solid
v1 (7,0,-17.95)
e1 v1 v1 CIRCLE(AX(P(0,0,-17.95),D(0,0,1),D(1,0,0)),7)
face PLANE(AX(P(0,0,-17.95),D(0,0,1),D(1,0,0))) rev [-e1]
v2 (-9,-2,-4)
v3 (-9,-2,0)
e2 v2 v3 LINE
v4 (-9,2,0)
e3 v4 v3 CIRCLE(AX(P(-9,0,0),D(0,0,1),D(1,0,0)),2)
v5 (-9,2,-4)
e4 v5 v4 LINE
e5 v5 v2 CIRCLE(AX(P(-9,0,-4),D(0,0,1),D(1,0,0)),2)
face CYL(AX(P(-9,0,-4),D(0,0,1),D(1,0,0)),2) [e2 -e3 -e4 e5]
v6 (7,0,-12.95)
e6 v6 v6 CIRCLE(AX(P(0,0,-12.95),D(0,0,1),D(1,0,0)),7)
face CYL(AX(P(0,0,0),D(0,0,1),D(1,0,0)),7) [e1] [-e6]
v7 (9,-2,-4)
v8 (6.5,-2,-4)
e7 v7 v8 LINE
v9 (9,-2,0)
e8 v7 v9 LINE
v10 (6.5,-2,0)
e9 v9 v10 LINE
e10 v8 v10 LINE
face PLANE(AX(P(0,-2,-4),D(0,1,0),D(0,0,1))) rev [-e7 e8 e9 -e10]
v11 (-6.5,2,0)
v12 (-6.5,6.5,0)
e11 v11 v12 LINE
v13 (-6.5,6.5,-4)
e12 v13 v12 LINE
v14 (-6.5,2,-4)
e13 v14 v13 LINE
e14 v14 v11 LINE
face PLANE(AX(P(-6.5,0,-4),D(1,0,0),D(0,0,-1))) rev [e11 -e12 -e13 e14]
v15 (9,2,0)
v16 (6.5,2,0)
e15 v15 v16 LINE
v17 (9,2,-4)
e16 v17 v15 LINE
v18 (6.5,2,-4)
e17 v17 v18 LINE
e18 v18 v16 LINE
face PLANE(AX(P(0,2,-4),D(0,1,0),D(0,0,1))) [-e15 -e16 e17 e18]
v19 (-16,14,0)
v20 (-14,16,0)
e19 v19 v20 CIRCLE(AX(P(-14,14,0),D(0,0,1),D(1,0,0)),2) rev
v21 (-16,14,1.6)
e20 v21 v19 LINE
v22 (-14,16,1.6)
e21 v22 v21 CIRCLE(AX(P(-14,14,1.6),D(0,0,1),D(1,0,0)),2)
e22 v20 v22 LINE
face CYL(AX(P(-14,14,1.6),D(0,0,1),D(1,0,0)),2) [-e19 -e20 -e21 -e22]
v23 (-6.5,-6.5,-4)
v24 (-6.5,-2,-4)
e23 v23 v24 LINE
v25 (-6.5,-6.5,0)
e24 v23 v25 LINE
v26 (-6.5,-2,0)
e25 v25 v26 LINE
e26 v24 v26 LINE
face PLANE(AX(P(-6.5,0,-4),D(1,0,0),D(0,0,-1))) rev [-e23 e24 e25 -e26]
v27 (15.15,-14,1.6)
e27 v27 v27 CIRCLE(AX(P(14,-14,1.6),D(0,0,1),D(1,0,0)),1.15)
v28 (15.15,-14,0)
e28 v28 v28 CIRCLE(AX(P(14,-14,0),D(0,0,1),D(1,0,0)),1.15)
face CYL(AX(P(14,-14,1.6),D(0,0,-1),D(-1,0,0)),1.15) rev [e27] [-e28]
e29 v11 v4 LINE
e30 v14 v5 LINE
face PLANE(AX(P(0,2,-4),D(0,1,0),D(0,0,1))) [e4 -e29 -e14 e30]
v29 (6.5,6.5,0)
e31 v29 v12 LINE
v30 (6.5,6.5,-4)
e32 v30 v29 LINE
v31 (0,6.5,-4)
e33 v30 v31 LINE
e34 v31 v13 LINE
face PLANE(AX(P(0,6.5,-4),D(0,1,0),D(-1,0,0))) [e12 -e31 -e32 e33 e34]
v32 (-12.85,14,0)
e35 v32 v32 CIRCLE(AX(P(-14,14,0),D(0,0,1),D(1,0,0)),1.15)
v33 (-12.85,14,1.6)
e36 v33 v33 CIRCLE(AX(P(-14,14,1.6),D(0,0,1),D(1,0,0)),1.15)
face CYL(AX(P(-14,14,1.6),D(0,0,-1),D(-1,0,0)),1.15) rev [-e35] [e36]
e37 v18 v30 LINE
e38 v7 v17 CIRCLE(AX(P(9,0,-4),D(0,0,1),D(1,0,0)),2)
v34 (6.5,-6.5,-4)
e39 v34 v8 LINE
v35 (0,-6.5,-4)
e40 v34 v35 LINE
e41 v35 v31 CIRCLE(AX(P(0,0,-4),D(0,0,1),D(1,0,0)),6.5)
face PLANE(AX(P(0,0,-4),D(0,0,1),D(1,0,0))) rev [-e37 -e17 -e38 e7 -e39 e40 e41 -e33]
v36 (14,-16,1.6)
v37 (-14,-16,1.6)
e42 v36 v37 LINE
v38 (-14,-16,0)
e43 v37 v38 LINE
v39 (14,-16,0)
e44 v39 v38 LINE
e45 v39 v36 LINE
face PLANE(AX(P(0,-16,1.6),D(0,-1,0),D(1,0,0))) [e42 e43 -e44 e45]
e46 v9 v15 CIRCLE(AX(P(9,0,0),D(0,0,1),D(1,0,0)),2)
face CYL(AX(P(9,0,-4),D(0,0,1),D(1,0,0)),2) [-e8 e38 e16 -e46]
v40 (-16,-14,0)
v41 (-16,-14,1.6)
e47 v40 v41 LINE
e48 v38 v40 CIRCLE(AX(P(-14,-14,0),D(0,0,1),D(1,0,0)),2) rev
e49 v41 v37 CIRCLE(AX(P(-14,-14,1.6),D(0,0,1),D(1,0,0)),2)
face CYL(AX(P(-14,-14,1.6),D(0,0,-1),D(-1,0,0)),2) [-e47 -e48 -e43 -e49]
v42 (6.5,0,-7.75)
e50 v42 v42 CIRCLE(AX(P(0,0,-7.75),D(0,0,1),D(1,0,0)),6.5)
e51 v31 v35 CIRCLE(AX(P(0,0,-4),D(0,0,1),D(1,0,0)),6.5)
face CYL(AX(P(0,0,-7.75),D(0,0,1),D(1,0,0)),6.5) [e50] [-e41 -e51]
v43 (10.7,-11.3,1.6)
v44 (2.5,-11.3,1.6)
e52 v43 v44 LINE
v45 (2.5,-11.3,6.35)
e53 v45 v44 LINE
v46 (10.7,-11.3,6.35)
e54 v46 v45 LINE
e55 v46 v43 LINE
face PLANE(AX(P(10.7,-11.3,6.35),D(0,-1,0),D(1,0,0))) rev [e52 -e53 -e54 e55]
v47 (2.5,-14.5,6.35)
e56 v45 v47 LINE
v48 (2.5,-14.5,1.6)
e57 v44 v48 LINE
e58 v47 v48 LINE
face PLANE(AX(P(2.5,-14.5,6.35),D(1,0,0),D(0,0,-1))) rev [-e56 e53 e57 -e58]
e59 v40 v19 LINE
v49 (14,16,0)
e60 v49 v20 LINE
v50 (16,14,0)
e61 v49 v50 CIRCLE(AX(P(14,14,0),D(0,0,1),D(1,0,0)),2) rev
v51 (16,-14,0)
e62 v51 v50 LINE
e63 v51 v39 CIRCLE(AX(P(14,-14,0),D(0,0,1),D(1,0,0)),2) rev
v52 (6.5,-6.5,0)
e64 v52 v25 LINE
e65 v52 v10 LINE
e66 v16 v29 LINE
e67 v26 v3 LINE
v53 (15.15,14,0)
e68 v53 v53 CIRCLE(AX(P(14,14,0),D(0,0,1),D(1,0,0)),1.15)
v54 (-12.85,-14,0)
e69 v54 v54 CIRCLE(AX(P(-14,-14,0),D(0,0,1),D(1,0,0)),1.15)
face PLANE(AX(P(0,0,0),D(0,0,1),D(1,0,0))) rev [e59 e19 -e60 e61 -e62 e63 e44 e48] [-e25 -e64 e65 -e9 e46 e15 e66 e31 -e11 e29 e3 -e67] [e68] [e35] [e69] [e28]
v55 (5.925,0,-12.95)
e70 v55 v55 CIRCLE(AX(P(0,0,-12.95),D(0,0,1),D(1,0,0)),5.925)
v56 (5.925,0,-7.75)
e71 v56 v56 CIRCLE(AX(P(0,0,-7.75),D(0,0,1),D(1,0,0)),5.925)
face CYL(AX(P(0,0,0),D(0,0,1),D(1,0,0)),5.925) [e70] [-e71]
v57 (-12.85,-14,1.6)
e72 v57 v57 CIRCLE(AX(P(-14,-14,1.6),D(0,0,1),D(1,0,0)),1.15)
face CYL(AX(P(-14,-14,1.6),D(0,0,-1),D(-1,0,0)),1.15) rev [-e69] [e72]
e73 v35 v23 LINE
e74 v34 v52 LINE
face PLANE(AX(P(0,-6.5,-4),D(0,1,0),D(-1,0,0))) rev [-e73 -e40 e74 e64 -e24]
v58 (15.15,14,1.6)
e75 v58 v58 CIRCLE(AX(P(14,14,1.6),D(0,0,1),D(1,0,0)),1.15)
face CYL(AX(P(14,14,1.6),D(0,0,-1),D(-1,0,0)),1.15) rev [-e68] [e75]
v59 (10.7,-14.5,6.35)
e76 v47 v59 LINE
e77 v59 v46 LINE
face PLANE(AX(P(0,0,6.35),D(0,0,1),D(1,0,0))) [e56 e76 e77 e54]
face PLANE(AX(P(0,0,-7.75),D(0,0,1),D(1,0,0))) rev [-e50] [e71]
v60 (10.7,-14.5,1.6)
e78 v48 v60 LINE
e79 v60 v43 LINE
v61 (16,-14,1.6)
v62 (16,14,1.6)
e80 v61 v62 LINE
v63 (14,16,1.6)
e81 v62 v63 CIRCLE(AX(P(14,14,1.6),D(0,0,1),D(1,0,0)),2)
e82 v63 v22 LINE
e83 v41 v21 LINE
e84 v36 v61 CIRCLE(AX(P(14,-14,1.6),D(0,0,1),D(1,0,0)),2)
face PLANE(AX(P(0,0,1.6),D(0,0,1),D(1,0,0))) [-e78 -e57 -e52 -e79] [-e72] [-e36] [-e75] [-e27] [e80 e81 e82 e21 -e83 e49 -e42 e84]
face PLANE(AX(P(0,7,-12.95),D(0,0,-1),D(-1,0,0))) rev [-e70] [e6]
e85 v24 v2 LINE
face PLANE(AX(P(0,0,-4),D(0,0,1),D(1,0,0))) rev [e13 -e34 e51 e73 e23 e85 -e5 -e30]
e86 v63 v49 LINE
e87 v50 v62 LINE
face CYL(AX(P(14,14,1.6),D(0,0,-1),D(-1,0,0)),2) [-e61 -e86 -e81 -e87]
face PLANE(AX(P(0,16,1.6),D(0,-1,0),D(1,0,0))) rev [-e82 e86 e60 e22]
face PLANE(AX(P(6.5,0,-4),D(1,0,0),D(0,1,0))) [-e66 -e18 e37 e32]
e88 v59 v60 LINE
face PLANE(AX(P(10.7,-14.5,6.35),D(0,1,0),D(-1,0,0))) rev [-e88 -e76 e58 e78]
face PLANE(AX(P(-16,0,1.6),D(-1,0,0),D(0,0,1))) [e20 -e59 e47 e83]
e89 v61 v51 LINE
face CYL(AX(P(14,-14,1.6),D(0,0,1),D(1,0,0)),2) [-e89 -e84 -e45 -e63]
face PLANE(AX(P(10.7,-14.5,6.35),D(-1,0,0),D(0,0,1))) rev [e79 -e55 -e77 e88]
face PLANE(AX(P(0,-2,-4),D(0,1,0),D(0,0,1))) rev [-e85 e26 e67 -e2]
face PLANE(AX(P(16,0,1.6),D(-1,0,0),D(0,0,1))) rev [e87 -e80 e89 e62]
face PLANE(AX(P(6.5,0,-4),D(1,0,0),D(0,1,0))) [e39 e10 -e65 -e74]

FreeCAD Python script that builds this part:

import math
import FreeCAD as App
import Part
import Sketcher
Q = App.Units.Quantity


def edges_at(feature, points):
    """Names of the edges that pass closest to the given points."""
    edges = feature.Shape.Edges
    near = lambda p: min(range(len(edges)), key=lambda i: edges[i].distToShape(Part.Vertex(*p))[0])
    return sorted({f"Edge{near(p) + 1}" for p in points})


def add_polygon(sketch, points):
    """Adds a closed chain of lines whose ends are joined by coincident constraints."""
    first, n = sketch.GeometryCount, len(points)
    for a, b in zip(points, points[1:] + points[:1]):
        sketch.addGeometry(Part.LineSegment(App.Vector(*a, 0), App.Vector(*b, 0)), False)
    for i in range(n):
        sketch.addConstraint(Sketcher.Constraint("Coincident", first + i, 2, first + (i + 1) % n, 1))

doc = App.newDocument("Part")
body = doc.addObject("PartDesign::Body", "Body")

# Sketch on XY plane
sketch1 = body.newObject("Sketcher::SketchObject", "Sketch")
sketch1.AttachmentSupport = (doc.getObject("XY_Plane"), [""])
sketch1.MapMode = "FlatFace"
add_polygon(sketch1, [(-16, 16), (-16, -16), (16, -16), (16, 16)])  # lines 0-3
sketch1.addGeometry(Part.Circle(App.Vector(-14, -14, 0), App.Vector(0, 0, 1), 1.1), False)  # 4
sketch1.addGeometry(Part.Circle(App.Vector(14, -14, 0), App.Vector(0, 0, 1), 1.1), False)  # 5
sketch1.addGeometry(Part.Circle(App.Vector(-14, 14, 0), App.Vector(0, 0, 1), 1.1), False)  # 6
sketch1.addGeometry(Part.Circle(App.Vector(14, 14, 0), App.Vector(0, 0, 1), 1.1), False)  # 7
sketch1.addConstraint([
    Sketcher.Constraint("Vertical", 0),
    Sketcher.Constraint("Horizontal", 1),
    Sketcher.Constraint("Vertical", 2),
    Sketcher.Constraint("Horizontal", 3),
    Sketcher.Constraint("Equal", 4, 5),
    Sketcher.Constraint("Equal", 5, 6),
    Sketcher.Constraint("Equal", 6, 7),
    Sketcher.Constraint("Symmetric", 5, 3, 6, 3, -1, 1),
    Sketcher.Constraint("Symmetric", 4, 3, 7, 3, -1, 1),
    Sketcher.Constraint("Symmetric", 0, 2, 2, 2, -1, 1),
    Sketcher.Constraint("Symmetric", 4, 3, 5, 3, -2),
    Sketcher.Constraint("Equal", 3, 0),
    Sketcher.Constraint("Diameter", 4, Q("2.3 mm")),
    Sketcher.Constraint("DistanceX", 1, 1, 1, 2, Q("32 mm")),
    Sketcher.Constraint("DistanceX", 4, 3, -1, 1, Q("14 mm")),
    Sketcher.Constraint("DistanceY", 4, 3, -1, 1, Q("14 mm")),
])
pad1 = body.newObject("PartDesign::Pad", "Pad")
pad1.Profile = sketch1
pad1.Length = 1.6
doc.recompute()

fillet = body.newObject("PartDesign::Fillet", "Fillet")
fillet.Base = (pad1, edges_at(pad1, [
    (-16, 16, 0.8),
    (16, 16, 0.8),
    (16, -16, 0.8),
    (-16, -16, 0.8),
]))
fillet.Radius = 2

# Sketch on XY plane
sketch2 = body.newObject("Sketcher::SketchObject", "Sketch001")
sketch2.AttachmentSupport = (doc.getObject("XY_Plane"), [""])
sketch2.MapMode = "FlatFace"
sketch2.addGeometry([
    Part.LineSegment(App.Vector(-6.5, 6.5, 0), App.Vector(-6.5, 2, 0)),  # 0
    Part.LineSegment(App.Vector(-6.5, 2, 0), App.Vector(-9, 2, 0)),  # 1
    Part.ArcOfCircle(Part.Circle(App.Vector(-9, 0, 0), App.Vector(0, 0, 1), 2), math.radians(90), math.radians(270)),  # 2
    Part.LineSegment(App.Vector(-9, -2, 0), App.Vector(-6.5, -2, 0)),  # 3
    Part.LineSegment(App.Vector(-6.5, -2, 0), App.Vector(-6.5, -6.5, 0)),  # 4
    Part.LineSegment(App.Vector(-6.5, -6.5, 0), App.Vector(6.5, -6.5, 0)),  # 5
    Part.LineSegment(App.Vector(6.5, -6.5, 0), App.Vector(6.5, -2, 0)),  # 6
    Part.LineSegment(App.Vector(6.5, -2, 0), App.Vector(9, -2, 0)),  # 7
    Part.ArcOfCircle(Part.Circle(App.Vector(9, 0, 0), App.Vector(0, 0, 1), 2), math.radians(-90), math.radians(90)),  # 8
    Part.LineSegment(App.Vector(9, 2, 0), App.Vector(6.5, 2, 0)),  # 9
    Part.LineSegment(App.Vector(6.5, 2, 0), App.Vector(6.5, 6.5, 0)),  # 10
    Part.LineSegment(App.Vector(6.5, 6.5, 0), App.Vector(-6.5, 6.5, 0)),  # 11
], False)
sketch2.addConstraint([
    Sketcher.Constraint("Coincident", 0, 2, 1, 1),
    Sketcher.Constraint("Tangent", 1, 2, 2, 1),
    Sketcher.Constraint("Tangent", 2, 2, 3, 1),
    Sketcher.Constraint("Coincident", 3, 2, 4, 1),
    Sketcher.Constraint("Coincident", 4, 2, 5, 1),
    Sketcher.Constraint("Coincident", 5, 2, 6, 1),
    Sketcher.Constraint("Coincident", 6, 2, 7, 1),
    Sketcher.Constraint("Tangent", 7, 2, 8, 1),
    Sketcher.Constraint("Tangent", 8, 2, 9, 1),
    Sketcher.Constraint("Coincident", 9, 2, 10, 1),
    Sketcher.Constraint("Coincident", 10, 2, 11, 1),
    Sketcher.Constraint("Coincident", 11, 2, 0, 1),
    Sketcher.Constraint("Vertical", 0),
    Sketcher.Constraint("Horizontal", 1),
    Sketcher.Constraint("Horizontal", 3),
    Sketcher.Constraint("Vertical", 4),
    Sketcher.Constraint("Horizontal", 5),
    Sketcher.Constraint("Vertical", 6),
    Sketcher.Constraint("Horizontal", 7),
    Sketcher.Constraint("Horizontal", 9),
    Sketcher.Constraint("Vertical", 10),
    Sketcher.Constraint("Horizontal", 11),
    Sketcher.Constraint("Equal", 2, 8),
    Sketcher.Constraint("Symmetric", 2, 3, 8, 3, -1, 1),
    Sketcher.Constraint("Symmetric", 4, 2, 10, 2, -1, 1),
    Sketcher.Constraint("Symmetric", 3, 2, 6, 2, -2),
    Sketcher.Constraint("Vertical", 0, 2, 3, 2),
    Sketcher.Constraint("Radius", 2, Q("2 mm")),
    Sketcher.Constraint("DistanceX", 5, 1, 5, 2, Q("13 mm")),
    Sketcher.Constraint("DistanceX", 1, 2, 1, 1, Q("2.5 mm")),
    Sketcher.Constraint("DistanceY", 0, 2, 0, 1, Q("4.5 mm")),
])
pad2 = body.newObject("PartDesign::Pad", "Pad001")
pad2.Profile = sketch2
pad2.Length = 4
pad2.Reversed = True

# Sketch on XY plane
sketch3 = body.newObject("Sketcher::SketchObject", "Sketch002")
sketch3.AttachmentSupport = (doc.getObject("XY_Plane"), [""])
sketch3.MapMode = "FlatFace"
sketch3.addGeometry([
    Part.ArcOfCircle(Part.Circle(App.Vector(0, 0, 0), App.Vector(0, 0, 1), 6.5), math.radians(18), math.radians(90)),  # 0
    Part.ArcOfCircle(Part.Circle(App.Vector(0, 0, 0), App.Vector(0, 0, 1), 6.5), math.radians(90), math.radians(162)),  # 1
    Part.ArcOfCircle(Part.Circle(App.Vector(0, 0, 0), App.Vector(0, 0, 1), 6.5), math.radians(162.08), math.radians(180)),  # 2
    Part.ArcOfCircle(Part.Circle(App.Vector(0, 0, 0), App.Vector(0, 0, 1), 6.5), math.radians(-180), math.radians(-162.08)),  # 3
    Part.ArcOfCircle(Part.Circle(App.Vector(0, 0, 0), App.Vector(0, 0, 1), 6.5), math.radians(-162), math.radians(-90)),  # 4
    Part.ArcOfCircle(Part.Circle(App.Vector(0, 0, 0), App.Vector(0, 0, 1), 6.5), math.radians(-90), math.radians(-18)),  # 5
    Part.ArcOfCircle(Part.Circle(App.Vector(0, 0, 0), App.Vector(0, 0, 1), 6.5), math.radians(-17.92), math.radians(0)),  # 6
    Part.ArcOfCircle(Part.Circle(App.Vector(0, 0, 0), App.Vector(0, 0, 1), 6.5), math.radians(0), math.radians(17.92)),  # 7
], False)
sketch3.addConstraint([
    Sketcher.Constraint("Tangent", 0, 2, 1, 1),
    Sketcher.Constraint("Tangent", 1, 2, 2, 1),
    Sketcher.Constraint("Tangent", 2, 2, 3, 1),
    Sketcher.Constraint("Tangent", 3, 2, 4, 1),
    Sketcher.Constraint("Tangent", 4, 2, 5, 1),
    Sketcher.Constraint("Tangent", 5, 2, 6, 1),
    Sketcher.Constraint("Tangent", 6, 2, 7, 1),
    Sketcher.Constraint("Tangent", 7, 2, 0, 1),
    Sketcher.Constraint("Coincident", 0, 3, -1, 1),
    Sketcher.Constraint("Coincident", 2, 3, -1, 1),
    Sketcher.Constraint("Coincident", 4, 3, -1, 1),
    Sketcher.Constraint("Equal", 4, 5),
    Sketcher.Constraint("PointOnObject", 0, 2, -2),
    Sketcher.Constraint("PointOnObject", 2, 2, -1),
    Sketcher.Constraint("PointOnObject", 4, 2, -2),
    Sketcher.Constraint("PointOnObject", 6, 2, -1),
    Sketcher.Constraint("Horizontal", 3, 2, 5, 2),
    Sketcher.Constraint("Horizontal", 1, 2, 7, 2),
    Sketcher.Constraint("Vertical", 1, 2, 3, 2),
    Sketcher.Constraint("Radius", 0, Q("6.5 mm")),
    Sketcher.Constraint("DistanceY", -1, 1, 1, 2, Q("2 mm")),
])
pad3 = body.newObject("PartDesign::Pad", "Pad002")
pad3.Profile = sketch3
pad3.Length = 7.75
pad3.Reversed = True

# Sketch on YZ plane
sketch4 = body.newObject("Sketcher::SketchObject", "Sketch003")
sketch4.AttachmentSupport = (doc.getObject("YZ_Plane"), [""])
sketch4.MapMode = "FlatFace"
add_polygon(sketch4, [(0, -17.9), (7, -17.9), (7, -12.9), (5.9, -12.9), (5.9, -7.8), (0, -7.8)])  # lines 0-5
sketch4.addConstraint([
    Sketcher.Constraint("Horizontal", 0),
    Sketcher.Constraint("Vertical", 1),
    Sketcher.Constraint("Horizontal", 2),
    Sketcher.Constraint("Vertical", 3),
    Sketcher.Constraint("Horizontal", 4),
    Sketcher.Constraint("Vertical", 5),
    Sketcher.Constraint("PointOnObject", 4, 2, -2),
    Sketcher.Constraint("DistanceX", 0, 1, 0, 2, Q("7 mm")),
    Sketcher.Constraint("DistanceY", 1, 1, 1, 2, Q("5 mm")),
    Sketcher.Constraint("DistanceY", 3, 1, 3, 2, Q("5.2 mm")),
    Sketcher.Constraint("DistanceX", 2, 2, 2, 1, Q("1.075 mm")),
    Sketcher.Constraint("DistanceY", 0, 2, -1, 1, Q("17.95 mm")),
])
revolution = body.newObject("PartDesign::Revolution", "Revolution")
revolution.Profile = sketch4
revolution.ReferenceAxis = (sketch4, ["V_Axis"])
revolution.Angle = 360

# Sketch on XY plane
sketch5 = body.newObject("Sketcher::SketchObject", "Sketch004")
sketch5.AttachmentSupport = (doc.getObject("XY_Plane"), [""])
sketch5.MapMode = "FlatFace"
sketch5.AttachmentOffset = App.Placement(App.Vector(0, 0, 1.6), App.Rotation())
add_polygon(sketch5, [(2.5, -11.3), (2.5, -14.5), (10.7, -14.5), (10.7, -11.3)])  # lines 0-3
sketch5.addConstraint([
    Sketcher.Constraint("Vertical", 0),
    Sketcher.Constraint("Horizontal", 1),
    Sketcher.Constraint("Vertical", 2),
    Sketcher.Constraint("Horizontal", 3),
    Sketcher.Constraint("DistanceX", 1, 1, 1, 2, Q("8.2 mm")),
    Sketcher.Constraint("DistanceY", 0, 2, 0, 1, Q("3.2 mm")),
    Sketcher.Constraint("DistanceX", -1, 1, 0, 2, Q("2.5 mm")),
    Sketcher.Constraint("DistanceY", 0, 2, -1, 1, Q("14.5 mm")),
])
pad4 = body.newObject("PartDesign::Pad", "Pad003")
pad4.Profile = sketch5
pad4.Length = 4.75

doc.recompute()
